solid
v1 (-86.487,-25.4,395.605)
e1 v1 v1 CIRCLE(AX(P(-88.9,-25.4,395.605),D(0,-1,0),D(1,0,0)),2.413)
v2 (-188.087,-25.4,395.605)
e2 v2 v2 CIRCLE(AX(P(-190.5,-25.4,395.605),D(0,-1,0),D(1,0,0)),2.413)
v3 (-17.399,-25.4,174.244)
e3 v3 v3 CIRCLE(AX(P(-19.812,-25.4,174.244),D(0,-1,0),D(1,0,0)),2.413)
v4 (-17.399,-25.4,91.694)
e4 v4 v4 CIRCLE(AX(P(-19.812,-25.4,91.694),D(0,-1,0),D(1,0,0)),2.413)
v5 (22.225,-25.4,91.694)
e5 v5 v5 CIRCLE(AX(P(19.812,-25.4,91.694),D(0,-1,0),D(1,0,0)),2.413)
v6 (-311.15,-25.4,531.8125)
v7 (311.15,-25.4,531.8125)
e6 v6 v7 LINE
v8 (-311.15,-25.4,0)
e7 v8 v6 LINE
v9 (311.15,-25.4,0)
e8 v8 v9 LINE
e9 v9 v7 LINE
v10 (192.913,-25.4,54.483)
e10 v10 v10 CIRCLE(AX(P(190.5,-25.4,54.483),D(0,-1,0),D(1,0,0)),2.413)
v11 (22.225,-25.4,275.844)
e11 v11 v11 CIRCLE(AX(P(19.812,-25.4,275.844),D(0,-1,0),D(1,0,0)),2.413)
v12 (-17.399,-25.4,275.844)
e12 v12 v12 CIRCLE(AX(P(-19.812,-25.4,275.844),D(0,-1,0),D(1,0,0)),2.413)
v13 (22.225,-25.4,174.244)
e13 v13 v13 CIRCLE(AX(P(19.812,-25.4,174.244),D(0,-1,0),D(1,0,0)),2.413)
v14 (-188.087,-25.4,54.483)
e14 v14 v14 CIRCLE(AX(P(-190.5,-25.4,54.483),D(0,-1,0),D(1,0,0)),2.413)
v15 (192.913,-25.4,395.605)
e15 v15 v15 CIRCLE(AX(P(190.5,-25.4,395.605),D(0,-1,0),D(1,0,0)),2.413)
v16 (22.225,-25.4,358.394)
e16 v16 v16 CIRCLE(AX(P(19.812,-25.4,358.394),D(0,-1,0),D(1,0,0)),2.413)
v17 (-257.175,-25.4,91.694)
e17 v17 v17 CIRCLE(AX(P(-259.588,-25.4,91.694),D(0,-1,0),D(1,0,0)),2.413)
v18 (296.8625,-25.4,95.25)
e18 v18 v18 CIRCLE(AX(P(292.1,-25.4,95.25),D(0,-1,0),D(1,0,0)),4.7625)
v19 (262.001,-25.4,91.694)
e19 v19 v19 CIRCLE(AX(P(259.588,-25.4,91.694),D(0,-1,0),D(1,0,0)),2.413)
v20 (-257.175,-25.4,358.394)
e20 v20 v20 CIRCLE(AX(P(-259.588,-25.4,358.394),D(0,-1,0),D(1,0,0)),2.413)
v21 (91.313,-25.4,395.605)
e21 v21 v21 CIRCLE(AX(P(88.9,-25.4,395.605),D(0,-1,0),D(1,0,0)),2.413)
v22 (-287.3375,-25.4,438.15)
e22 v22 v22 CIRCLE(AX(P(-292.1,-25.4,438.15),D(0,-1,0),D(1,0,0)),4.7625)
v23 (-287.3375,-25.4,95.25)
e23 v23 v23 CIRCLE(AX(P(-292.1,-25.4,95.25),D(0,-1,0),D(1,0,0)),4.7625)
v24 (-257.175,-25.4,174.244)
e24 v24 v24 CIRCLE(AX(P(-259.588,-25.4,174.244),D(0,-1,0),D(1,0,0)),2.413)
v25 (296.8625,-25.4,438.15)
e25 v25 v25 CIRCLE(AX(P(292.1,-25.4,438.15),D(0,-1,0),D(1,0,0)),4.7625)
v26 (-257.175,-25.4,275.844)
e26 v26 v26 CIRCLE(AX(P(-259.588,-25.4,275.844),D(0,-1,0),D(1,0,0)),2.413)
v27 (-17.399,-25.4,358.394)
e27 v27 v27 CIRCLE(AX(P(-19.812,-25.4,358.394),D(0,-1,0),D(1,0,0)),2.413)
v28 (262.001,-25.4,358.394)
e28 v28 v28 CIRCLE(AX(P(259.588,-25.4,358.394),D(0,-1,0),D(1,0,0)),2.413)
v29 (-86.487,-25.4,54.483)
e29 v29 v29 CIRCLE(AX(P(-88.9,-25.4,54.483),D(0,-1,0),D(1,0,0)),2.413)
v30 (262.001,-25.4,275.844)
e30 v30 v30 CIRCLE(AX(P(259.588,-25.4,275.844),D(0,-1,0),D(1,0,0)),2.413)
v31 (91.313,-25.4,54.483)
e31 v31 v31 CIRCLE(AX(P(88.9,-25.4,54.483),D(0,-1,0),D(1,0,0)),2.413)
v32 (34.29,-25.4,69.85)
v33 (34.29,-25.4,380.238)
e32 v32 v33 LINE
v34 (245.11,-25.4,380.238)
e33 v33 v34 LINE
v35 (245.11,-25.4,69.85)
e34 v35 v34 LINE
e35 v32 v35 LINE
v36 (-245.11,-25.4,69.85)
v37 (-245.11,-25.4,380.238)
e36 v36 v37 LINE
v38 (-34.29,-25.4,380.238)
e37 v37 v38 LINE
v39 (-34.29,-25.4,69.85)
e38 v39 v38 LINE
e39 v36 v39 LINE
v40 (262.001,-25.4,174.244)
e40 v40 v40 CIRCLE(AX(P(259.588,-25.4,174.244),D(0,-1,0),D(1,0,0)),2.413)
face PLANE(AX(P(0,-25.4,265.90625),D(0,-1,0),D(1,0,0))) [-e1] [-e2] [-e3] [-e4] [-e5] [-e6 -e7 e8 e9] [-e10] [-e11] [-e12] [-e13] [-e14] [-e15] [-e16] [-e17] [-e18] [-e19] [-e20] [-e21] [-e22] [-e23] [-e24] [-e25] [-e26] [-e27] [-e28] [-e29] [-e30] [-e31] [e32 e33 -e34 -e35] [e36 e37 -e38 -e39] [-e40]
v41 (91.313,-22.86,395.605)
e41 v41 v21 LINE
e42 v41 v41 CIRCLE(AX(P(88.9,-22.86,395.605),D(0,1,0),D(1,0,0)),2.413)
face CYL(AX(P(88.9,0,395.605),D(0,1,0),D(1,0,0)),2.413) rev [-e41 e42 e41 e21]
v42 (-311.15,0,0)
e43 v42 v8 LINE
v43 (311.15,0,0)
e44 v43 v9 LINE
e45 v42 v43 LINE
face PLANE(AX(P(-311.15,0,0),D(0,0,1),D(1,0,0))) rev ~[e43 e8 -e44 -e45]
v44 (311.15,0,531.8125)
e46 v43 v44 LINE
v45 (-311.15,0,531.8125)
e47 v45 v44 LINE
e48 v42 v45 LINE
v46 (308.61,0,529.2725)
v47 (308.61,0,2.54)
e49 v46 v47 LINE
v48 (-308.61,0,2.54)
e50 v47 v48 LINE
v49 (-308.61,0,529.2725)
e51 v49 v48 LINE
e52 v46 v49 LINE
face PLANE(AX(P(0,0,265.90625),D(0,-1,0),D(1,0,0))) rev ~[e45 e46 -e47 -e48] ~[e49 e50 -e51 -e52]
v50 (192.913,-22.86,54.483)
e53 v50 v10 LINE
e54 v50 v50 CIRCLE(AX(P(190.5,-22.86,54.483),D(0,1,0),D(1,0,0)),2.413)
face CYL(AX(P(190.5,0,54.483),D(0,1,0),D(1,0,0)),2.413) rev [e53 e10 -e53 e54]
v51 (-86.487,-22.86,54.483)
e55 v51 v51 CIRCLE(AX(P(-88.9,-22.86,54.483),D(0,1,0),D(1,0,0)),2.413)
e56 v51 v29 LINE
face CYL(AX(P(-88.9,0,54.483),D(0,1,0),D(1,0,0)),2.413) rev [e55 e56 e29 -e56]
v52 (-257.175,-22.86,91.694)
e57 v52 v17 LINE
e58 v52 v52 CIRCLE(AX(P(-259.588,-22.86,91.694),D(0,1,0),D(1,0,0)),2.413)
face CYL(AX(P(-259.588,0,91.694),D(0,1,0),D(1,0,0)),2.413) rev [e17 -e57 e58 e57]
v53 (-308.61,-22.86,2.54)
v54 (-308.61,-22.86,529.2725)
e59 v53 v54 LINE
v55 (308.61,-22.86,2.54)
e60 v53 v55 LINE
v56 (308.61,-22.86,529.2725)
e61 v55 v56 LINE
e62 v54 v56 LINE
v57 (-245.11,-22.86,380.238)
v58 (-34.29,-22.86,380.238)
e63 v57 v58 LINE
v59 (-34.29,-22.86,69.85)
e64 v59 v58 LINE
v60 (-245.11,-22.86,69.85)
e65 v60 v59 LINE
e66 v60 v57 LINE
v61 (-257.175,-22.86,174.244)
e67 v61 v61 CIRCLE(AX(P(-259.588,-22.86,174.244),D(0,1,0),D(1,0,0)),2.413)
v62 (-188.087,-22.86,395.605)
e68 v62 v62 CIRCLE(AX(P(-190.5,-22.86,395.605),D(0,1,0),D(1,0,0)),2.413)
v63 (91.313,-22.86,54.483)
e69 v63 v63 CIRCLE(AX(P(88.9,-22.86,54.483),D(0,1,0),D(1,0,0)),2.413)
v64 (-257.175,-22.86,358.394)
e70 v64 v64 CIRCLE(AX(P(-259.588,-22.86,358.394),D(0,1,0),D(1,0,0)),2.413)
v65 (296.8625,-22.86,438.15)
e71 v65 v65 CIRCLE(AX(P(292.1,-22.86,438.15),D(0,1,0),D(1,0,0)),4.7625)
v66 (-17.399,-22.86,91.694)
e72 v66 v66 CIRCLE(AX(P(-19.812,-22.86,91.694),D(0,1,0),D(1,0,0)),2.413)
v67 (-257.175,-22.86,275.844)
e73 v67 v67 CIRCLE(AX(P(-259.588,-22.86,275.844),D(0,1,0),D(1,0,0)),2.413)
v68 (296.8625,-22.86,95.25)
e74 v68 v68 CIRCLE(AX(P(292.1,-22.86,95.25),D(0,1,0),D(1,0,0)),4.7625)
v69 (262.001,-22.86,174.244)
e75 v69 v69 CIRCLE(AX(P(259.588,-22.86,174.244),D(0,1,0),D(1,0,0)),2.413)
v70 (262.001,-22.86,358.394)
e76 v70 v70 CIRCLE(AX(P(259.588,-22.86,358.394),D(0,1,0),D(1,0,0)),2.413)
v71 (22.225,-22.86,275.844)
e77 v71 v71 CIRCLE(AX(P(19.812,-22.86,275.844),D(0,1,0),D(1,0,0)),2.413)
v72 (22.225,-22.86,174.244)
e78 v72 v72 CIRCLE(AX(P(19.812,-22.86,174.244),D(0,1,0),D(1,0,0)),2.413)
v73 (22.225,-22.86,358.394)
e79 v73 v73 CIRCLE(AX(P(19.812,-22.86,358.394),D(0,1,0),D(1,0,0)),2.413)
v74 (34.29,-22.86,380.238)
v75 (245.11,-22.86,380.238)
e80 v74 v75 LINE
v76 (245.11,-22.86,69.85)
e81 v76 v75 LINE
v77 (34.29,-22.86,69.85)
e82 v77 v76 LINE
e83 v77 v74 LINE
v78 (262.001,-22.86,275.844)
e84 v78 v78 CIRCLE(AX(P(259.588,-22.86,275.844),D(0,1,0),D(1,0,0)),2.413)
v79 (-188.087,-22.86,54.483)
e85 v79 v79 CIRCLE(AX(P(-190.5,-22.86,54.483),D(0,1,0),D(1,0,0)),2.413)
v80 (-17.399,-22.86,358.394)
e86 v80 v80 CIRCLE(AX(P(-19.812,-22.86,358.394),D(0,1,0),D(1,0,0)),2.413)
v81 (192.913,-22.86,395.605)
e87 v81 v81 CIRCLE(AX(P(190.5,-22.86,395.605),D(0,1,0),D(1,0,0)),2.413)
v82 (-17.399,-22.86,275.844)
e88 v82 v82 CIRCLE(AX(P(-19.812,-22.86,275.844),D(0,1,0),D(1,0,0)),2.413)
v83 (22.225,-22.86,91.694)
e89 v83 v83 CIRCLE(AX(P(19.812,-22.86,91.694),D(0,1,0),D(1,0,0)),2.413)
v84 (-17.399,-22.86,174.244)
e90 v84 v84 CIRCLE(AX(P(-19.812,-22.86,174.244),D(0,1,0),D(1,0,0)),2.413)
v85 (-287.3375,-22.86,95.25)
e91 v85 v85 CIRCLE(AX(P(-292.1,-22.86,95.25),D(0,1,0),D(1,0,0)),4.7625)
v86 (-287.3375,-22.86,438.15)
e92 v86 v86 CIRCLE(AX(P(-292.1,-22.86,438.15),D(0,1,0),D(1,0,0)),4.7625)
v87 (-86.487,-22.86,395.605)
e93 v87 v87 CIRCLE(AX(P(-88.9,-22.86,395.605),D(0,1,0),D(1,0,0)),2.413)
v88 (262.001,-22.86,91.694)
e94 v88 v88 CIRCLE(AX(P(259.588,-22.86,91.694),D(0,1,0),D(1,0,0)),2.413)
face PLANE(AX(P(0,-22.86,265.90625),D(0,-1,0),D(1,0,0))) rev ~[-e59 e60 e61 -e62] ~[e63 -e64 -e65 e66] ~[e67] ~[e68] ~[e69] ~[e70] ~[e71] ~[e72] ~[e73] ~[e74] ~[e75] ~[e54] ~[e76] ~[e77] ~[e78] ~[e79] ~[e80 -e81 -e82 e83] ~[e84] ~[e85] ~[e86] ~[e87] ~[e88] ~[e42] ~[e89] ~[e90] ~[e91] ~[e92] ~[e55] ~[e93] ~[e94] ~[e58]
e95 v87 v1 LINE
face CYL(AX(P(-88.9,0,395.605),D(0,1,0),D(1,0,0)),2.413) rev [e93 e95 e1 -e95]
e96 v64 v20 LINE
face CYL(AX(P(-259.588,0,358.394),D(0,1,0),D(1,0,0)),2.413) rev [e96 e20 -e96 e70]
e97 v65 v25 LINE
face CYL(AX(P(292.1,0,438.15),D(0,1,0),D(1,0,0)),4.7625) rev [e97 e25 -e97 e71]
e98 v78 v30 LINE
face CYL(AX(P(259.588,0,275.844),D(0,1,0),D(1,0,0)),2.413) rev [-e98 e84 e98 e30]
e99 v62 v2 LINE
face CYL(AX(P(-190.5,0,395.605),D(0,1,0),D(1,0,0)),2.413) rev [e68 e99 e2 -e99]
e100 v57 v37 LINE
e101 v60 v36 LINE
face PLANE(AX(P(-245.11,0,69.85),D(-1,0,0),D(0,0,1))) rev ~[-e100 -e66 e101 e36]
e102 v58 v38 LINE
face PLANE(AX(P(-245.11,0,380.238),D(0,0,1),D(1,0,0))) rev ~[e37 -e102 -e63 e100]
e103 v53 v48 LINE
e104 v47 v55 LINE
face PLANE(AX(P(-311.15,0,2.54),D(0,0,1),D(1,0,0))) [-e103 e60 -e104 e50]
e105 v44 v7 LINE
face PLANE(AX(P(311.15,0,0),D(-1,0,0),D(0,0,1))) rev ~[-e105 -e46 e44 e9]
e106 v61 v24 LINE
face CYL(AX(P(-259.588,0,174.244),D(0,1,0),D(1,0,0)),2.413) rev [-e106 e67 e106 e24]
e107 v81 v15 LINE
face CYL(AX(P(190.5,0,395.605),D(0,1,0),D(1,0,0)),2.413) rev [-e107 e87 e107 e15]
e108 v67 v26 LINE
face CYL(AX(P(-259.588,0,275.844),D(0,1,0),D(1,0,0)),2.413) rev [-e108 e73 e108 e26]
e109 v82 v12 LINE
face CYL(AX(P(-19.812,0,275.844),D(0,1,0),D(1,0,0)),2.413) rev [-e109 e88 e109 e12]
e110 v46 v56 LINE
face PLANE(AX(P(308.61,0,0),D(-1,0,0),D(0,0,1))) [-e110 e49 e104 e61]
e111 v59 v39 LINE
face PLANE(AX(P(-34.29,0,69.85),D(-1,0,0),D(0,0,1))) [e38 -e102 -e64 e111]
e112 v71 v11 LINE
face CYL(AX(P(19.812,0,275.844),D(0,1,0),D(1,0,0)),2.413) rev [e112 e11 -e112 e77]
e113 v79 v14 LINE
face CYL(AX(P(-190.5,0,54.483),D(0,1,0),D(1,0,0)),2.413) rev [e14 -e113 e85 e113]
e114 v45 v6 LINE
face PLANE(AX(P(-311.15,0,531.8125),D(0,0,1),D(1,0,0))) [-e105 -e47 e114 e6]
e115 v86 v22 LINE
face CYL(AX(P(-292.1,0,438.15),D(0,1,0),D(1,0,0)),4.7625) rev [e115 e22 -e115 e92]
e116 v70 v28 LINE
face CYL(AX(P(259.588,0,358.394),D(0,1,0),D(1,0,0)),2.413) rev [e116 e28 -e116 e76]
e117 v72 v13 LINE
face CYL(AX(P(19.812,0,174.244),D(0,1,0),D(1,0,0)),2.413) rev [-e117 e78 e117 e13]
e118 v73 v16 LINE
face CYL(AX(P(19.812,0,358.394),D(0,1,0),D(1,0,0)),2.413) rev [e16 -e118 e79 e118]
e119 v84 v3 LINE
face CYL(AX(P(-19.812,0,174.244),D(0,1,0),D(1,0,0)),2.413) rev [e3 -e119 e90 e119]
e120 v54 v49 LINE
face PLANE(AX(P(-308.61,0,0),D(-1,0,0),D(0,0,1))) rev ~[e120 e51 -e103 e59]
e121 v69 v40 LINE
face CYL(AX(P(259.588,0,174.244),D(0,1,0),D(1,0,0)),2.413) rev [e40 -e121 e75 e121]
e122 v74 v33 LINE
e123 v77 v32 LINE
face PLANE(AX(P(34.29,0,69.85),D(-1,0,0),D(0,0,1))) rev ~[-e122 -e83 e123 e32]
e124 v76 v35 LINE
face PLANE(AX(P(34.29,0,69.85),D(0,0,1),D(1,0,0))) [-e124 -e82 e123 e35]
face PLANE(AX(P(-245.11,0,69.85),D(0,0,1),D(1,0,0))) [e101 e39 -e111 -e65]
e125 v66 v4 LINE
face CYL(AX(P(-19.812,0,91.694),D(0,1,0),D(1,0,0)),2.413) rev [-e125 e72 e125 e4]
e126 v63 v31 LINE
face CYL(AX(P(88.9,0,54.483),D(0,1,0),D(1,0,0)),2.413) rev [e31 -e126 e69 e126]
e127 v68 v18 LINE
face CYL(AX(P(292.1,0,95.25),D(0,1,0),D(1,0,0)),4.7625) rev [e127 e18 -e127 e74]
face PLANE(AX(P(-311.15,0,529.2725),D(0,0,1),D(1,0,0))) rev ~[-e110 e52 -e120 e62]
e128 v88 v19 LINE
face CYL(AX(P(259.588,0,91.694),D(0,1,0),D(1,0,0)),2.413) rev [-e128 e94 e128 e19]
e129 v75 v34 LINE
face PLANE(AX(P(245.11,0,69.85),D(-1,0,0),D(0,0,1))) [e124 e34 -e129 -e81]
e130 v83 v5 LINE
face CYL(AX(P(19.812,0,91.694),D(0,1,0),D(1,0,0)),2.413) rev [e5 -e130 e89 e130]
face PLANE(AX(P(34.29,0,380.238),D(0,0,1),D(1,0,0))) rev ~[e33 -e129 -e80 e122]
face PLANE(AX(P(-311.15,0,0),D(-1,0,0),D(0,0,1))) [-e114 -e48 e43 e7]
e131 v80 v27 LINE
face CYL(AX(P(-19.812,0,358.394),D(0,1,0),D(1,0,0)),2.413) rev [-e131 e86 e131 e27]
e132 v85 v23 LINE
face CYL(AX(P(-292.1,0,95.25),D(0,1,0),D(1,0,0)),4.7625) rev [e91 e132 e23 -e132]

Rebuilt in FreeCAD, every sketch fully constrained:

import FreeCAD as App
import Part
import Sketcher
Q = App.Units.Quantity


def faces_at(feature, points):
    """Names of the faces that lie closest to the given points."""
    faces = feature.Shape.Faces
    near = lambda p: min(range(len(faces)), key=lambda i: faces[i].distToShape(Part.Vertex(*p))[0])
    return sorted({f"Face{near(p) + 1}" for p in points})

doc = App.newDocument("Part")
body = doc.addObject("PartDesign::Body", "Body")

sketch1 = doc.addObject("Sketcher::SketchObject", "Sketch")
body.addObject(sketch1)
sketch1.AttachmentSupport = (doc.XZ_Plane, [""])
sketch1.MapMode = "FlatFace"
sketch1.addGeometry([
    Part.LineSegment(App.Vector(-311.1, 531.8, 0), App.Vector(-311.1, 0, 0)),
    Part.LineSegment(App.Vector(-311.1, 0, 0), App.Vector(311.1, 0, 0)),
    Part.LineSegment(App.Vector(311.1, 0, 0), App.Vector(311.1, 531.8, 0)),
    Part.LineSegment(App.Vector(311.1, 531.8, 0), App.Vector(-311.1, 531.8, 0)),
    Part.Circle(App.Vector(-292.1, 95.2, 0), App.Vector(0, 0, 1), 4.8),
    Part.Circle(App.Vector(-259.6, 91.7, 0), App.Vector(0, 0, 1), 2.4),
    Part.Circle(App.Vector(-190.5, 54.5, 0), App.Vector(0, 0, 1), 2.4),
    Part.Circle(App.Vector(-88.9, 54.5, 0), App.Vector(0, 0, 1), 2.4),
    Part.Circle(App.Vector(-19.8, 91.7, 0), App.Vector(0, 0, 1), 2.4),
    Part.Circle(App.Vector(-259.6, 174.2, 0), App.Vector(0, 0, 1), 2.4),
    Part.Circle(App.Vector(-19.8, 174.2, 0), App.Vector(0, 0, 1), 2.4),
    Part.LineSegment(App.Vector(-34.3, 69.8, 0), App.Vector(-245.1, 69.8, 0)),
    Part.LineSegment(App.Vector(-245.1, 69.8, 0), App.Vector(-245.1, 380.2, 0)),
    Part.LineSegment(App.Vector(-245.1, 380.2, 0), App.Vector(-34.3, 380.2, 0)),
    Part.LineSegment(App.Vector(-34.3, 380.2, 0), App.Vector(-34.3, 69.8, 0)),
    Part.Circle(App.Vector(19.8, 91.7, 0), App.Vector(0, 0, 1), 2.4),
    Part.Circle(App.Vector(88.9, 54.5, 0), App.Vector(0, 0, 1), 2.4),
    Part.Circle(App.Vector(190.5, 54.5, 0), App.Vector(0, 0, 1), 2.4),
    Part.Circle(App.Vector(259.6, 91.7, 0), App.Vector(0, 0, 1), 2.4),
    Part.Circle(App.Vector(292.1, 95.2, 0), App.Vector(0, 0, 1), 4.8),
    Part.Circle(App.Vector(19.8, 174.2, 0), App.Vector(0, 0, 1), 2.4),
    Part.LineSegment(App.Vector(245.1, 69.8, 0), App.Vector(34.3, 69.8, 0)),
    Part.LineSegment(App.Vector(34.3, 69.8, 0), App.Vector(34.3, 380.2, 0)),
    Part.LineSegment(App.Vector(34.3, 380.2, 0), App.Vector(245.1, 380.2, 0)),
    Part.LineSegment(App.Vector(245.1, 380.2, 0), App.Vector(245.1, 69.8, 0)),
    Part.Circle(App.Vector(259.6, 174.2, 0), App.Vector(0, 0, 1), 2.4),
    Part.Circle(App.Vector(-259.6, 275.8, 0), App.Vector(0, 0, 1), 2.4),
    Part.Circle(App.Vector(-19.8, 275.8, 0), App.Vector(0, 0, 1), 2.4),
    Part.Circle(App.Vector(-259.6, 358.4, 0), App.Vector(0, 0, 1), 2.4),
    Part.Circle(App.Vector(-292.1, 438.1, 0), App.Vector(0, 0, 1), 4.8),
    Part.Circle(App.Vector(-190.5, 395.6, 0), App.Vector(0, 0, 1), 2.4),
    Part.Circle(App.Vector(-19.8, 358.4, 0), App.Vector(0, 0, 1), 2.4),
    Part.Circle(App.Vector(-88.9, 395.6, 0), App.Vector(0, 0, 1), 2.4),
    Part.Circle(App.Vector(19.8, 275.8, 0), App.Vector(0, 0, 1), 2.4),
    Part.Circle(App.Vector(259.6, 275.8, 0), App.Vector(0, 0, 1), 2.4),
    Part.Circle(App.Vector(19.8, 358.4, 0), App.Vector(0, 0, 1), 2.4),
    Part.Circle(App.Vector(88.9, 395.6, 0), App.Vector(0, 0, 1), 2.4),
    Part.Circle(App.Vector(259.6, 358.4, 0), App.Vector(0, 0, 1), 2.4),
    Part.Circle(App.Vector(190.5, 395.6, 0), App.Vector(0, 0, 1), 2.4),
    Part.Circle(App.Vector(292.1, 438.1, 0), App.Vector(0, 0, 1), 4.8),
], False)
sketch1.addConstraint([
    Sketcher.Constraint("Coincident", 0, 2, 1, 1),
    Sketcher.Constraint("Coincident", 1, 2, 2, 1),
    Sketcher.Constraint("Coincident", 2, 2, 3, 1),
    Sketcher.Constraint("Coincident", 3, 2, 0, 1),
    Sketcher.Constraint("Coincident", 11, 2, 12, 1),
    Sketcher.Constraint("Coincident", 12, 2, 13, 1),
    Sketcher.Constraint("Coincident", 13, 2, 14, 1),
    Sketcher.Constraint("Coincident", 14, 2, 11, 1),
    Sketcher.Constraint("Coincident", 21, 2, 22, 1),
    Sketcher.Constraint("Coincident", 22, 2, 23, 1),
    Sketcher.Constraint("Coincident", 23, 2, 24, 1),
    Sketcher.Constraint("Coincident", 24, 2, 21, 1),
    Sketcher.Constraint("Vertical", 0),
    Sketcher.Constraint("Horizontal", 1),
    Sketcher.Constraint("Vertical", 2),
    Sketcher.Constraint("Horizontal", 3),
    Sketcher.Constraint("Horizontal", 11),
    Sketcher.Constraint("Vertical", 12),
    Sketcher.Constraint("Horizontal", 13),
    Sketcher.Constraint("Vertical", 14),
    Sketcher.Constraint("Horizontal", 21),
    Sketcher.Constraint("Vertical", 22),
    Sketcher.Constraint("Horizontal", 23),
    Sketcher.Constraint("Vertical", 24),
    Sketcher.Constraint("Equal", 5, 6),
    Sketcher.Constraint("Equal", 6, 7),
    Sketcher.Constraint("Equal", 7, 8),
    Sketcher.Constraint("Equal", 8, 9),
    Sketcher.Constraint("Equal", 9, 10),
    Sketcher.Constraint("Equal", 10, 15),
    Sketcher.Constraint("Equal", 15, 16),
    Sketcher.Constraint("Equal", 16, 17),
    Sketcher.Constraint("Equal", 17, 18),
    Sketcher.Constraint("Equal", 4, 19),
    Sketcher.Constraint("Equal", 18, 20),
    Sketcher.Constraint("Equal", 20, 25),
    Sketcher.Constraint("Equal", 25, 26),
    Sketcher.Constraint("Equal", 26, 27),
    Sketcher.Constraint("Equal", 27, 28),
    Sketcher.Constraint("Equal", 19, 29),
    Sketcher.Constraint("Equal", 28, 30),
    Sketcher.Constraint("Equal", 30, 31),
    Sketcher.Constraint("Equal", 31, 32),
    Sketcher.Constraint("Equal", 32, 33),
    Sketcher.Constraint("Equal", 33, 34),
    Sketcher.Constraint("Equal", 34, 35),
    Sketcher.Constraint("Equal", 35, 36),
    Sketcher.Constraint("Equal", 36, 37),
    Sketcher.Constraint("Equal", 37, 38),
    Sketcher.Constraint("Equal", 29, 39),
    Sketcher.Constraint("Symmetric", 0, 2, 1, 2, -1, 1),
    Sketcher.Constraint("Symmetric", 8, 3, 15, 3, -2),
    Sketcher.Constraint("Symmetric", 7, 3, 16, 3, -2),
    Sketcher.Constraint("Symmetric", 6, 3, 17, 3, -2),
    Sketcher.Constraint("Symmetric", 5, 3, 18, 3, -2),
    Sketcher.Constraint("Symmetric", 4, 3, 19, 3, -2),
    Sketcher.Constraint("Symmetric", 10, 3, 20, 3, -2),
    Sketcher.Constraint("Symmetric", 9, 3, 25, 3, -2),
    Sketcher.Constraint("Symmetric", 27, 3, 33, 3, -2),
    Sketcher.Constraint("Symmetric", 26, 3, 34, 3, -2),
    Sketcher.Constraint("Symmetric", 31, 3, 35, 3, -2),
    Sketcher.Constraint("Symmetric", 32, 3, 36, 3, -2),
    Sketcher.Constraint("Symmetric", 28, 3, 37, 3, -2),
    Sketcher.Constraint("Symmetric", 30, 3, 38, 3, -2),
    Sketcher.Constraint("Symmetric", 29, 3, 39, 3, -2),
    Sketcher.Constraint("Symmetric", 14, 2, 21, 2, -2),
    Sketcher.Constraint("Symmetric", 12, 2, 23, 2, -2),
    Sketcher.Constraint("Horizontal", 6, 3, 7, 3),
    Sketcher.Constraint("Horizontal", 5, 3, 8, 3),
    Sketcher.Constraint("Horizontal", 9, 3, 10, 3),
    Sketcher.Constraint("Horizontal", 26, 3, 27, 3),
    Sketcher.Constraint("Horizontal", 28, 3, 31, 3),
    Sketcher.Constraint("Horizontal", 30, 3, 32, 3),
    Sketcher.Constraint("Vertical", 5, 3, 9, 3),
    Sketcher.Constraint("Vertical", 8, 3, 10, 3),
    Sketcher.Constraint("Vertical", 9, 3, 26, 3),
    Sketcher.Constraint("Vertical", 10, 3, 27, 3),
    Sketcher.Constraint("Vertical", 26, 3, 28, 3),
    Sketcher.Constraint("Vertical", 4, 3, 29, 3),
    Sketcher.Constraint("Vertical", 6, 3, 30, 3),
    Sketcher.Constraint("Vertical", 27, 3, 31, 3),
    Sketcher.Constraint("Vertical", 7, 3, 32, 3),
    Sketcher.Constraint("Diameter", 5, Q("0.19 in")),
    Sketcher.Constraint("Diameter", 4, Q("0.375 in")),
    Sketcher.Constraint("DistanceX", 1, 1, 1, 2, Q("24.5 in")),
    Sketcher.Constraint("DistanceX", 11, 2, 11, 1, Q("8.3 in")),
    Sketcher.Constraint("DistanceX", 4, 3, 6, 3, Q("4 in")),
    Sketcher.Constraint("DistanceX", 6, 3, 7, 3, Q("4 in")),
    Sketcher.Constraint("DistanceX", 5, 3, 15, 3, Q("11 in")),
    Sketcher.Constraint("DistanceX", 7, 3, 16, 3, Q("7 in")),
    Sketcher.Constraint("DistanceY", 9, 3, 26, 3, Q("4 in")),
    Sketcher.Constraint("DistanceY", 11, 2, 4, 3, Q("1 in")),
    Sketcher.Constraint("DistanceY", 12, 1, 12, 2, Q("12.22 in")),
    Sketcher.Constraint("DistanceY", 5, 3, 28, 3, Q("10.5 in")),
    Sketcher.Constraint("DistanceY", 4, 3, 29, 3, Q("13.5 in")),
    Sketcher.Constraint("DistanceX", 0, 2, 11, 2, Q("2.6 in")),
    Sketcher.Constraint("DistanceY", 0, 2, 0, 1, Q("20.9375 in")),
    Sketcher.Constraint("DistanceY", -1, 1, 4, 3, Q("3.75 in")),
    Sketcher.Constraint("DistanceX", 5, 3, -1, 1, Q("10.22 in")),
    Sketcher.Constraint("DistanceY", -1, 1, 5, 3, Q("3.61 in")),
    Sketcher.Constraint("DistanceY", -1, 1, 9, 3, Q("6.86 in")),
    Sketcher.Constraint("DistanceY", -1, 1, 6, 3, Q("2.145 in")),
    Sketcher.Constraint("DistanceY", -1, 1, 30, 3, Q("15.575 in")),
])
pad1 = doc.addObject("PartDesign::Pad", "Pad")
body.addObject(pad1)
pad1.Profile = sketch1
pad1.Length = Q("1 in")
doc.recompute()

thickness = doc.addObject("PartDesign::Thickness", "Thickness")
body.addObject(thickness)
thickness.Base = (pad1, faces_at(pad1, [(0, 0, 265.906)]))
thickness.Value = Q("0.1 in")
thickness.Reversed = True
thickness.Join = "Intersection"

sketch2 = doc.addObject("Sketcher::SketchObject", "Sketch001")
body.addObject(sketch2)
sketch2.AttachmentSupport = (doc.XY_Plane, [""])
sketch2.MapMode = "FlatFace"
sketch2.AttachmentOffset = App.Placement(App.Vector(0, 0, 20.8375 * 25.4), App.Rotation())
sketch2.addGeometry([
    Part.LineSegment(App.Vector(-309, -23, 0), App.Vector(-309, 0, 0)),
    Part.LineSegment(App.Vector(-309, 0, 0), App.Vector(309, 0, 0)),
    Part.LineSegment(App.Vector(309, 0, 0), App.Vector(309, -23, 0)),
    Part.LineSegment(App.Vector(309, -23, 0), App.Vector(-309, -23, 0)),
], False)
sketch2.addConstraint([
    Sketcher.Constraint("Coincident", 0, 2, 1, 1),
    Sketcher.Constraint("Coincident", 1, 2, 2, 1),
    Sketcher.Constraint("Coincident", 2, 2, 3, 1),
    Sketcher.Constraint("Coincident", 3, 2, 0, 1),
    Sketcher.Constraint("Vertical", 0),
    Sketcher.Constraint("Horizontal", 1),
    Sketcher.Constraint("Vertical", 2),
    Sketcher.Constraint("Horizontal", 3),
    Sketcher.Constraint("Symmetric", 0, 2, 1, 2, -1, 1),
    Sketcher.Constraint("DistanceX", 1, 1, 1, 2, Q("24.3 in")),
    Sketcher.Constraint("DistanceY", 0, 1, 0, 2, Q("0.9 in")),
])
pocket1 = doc.addObject("PartDesign::Pocket", "Pocket")
body.addObject(pocket1)
pocket1.Profile = sketch2
pocket1.Length = Q("20.7375 in")

doc.recompute()
